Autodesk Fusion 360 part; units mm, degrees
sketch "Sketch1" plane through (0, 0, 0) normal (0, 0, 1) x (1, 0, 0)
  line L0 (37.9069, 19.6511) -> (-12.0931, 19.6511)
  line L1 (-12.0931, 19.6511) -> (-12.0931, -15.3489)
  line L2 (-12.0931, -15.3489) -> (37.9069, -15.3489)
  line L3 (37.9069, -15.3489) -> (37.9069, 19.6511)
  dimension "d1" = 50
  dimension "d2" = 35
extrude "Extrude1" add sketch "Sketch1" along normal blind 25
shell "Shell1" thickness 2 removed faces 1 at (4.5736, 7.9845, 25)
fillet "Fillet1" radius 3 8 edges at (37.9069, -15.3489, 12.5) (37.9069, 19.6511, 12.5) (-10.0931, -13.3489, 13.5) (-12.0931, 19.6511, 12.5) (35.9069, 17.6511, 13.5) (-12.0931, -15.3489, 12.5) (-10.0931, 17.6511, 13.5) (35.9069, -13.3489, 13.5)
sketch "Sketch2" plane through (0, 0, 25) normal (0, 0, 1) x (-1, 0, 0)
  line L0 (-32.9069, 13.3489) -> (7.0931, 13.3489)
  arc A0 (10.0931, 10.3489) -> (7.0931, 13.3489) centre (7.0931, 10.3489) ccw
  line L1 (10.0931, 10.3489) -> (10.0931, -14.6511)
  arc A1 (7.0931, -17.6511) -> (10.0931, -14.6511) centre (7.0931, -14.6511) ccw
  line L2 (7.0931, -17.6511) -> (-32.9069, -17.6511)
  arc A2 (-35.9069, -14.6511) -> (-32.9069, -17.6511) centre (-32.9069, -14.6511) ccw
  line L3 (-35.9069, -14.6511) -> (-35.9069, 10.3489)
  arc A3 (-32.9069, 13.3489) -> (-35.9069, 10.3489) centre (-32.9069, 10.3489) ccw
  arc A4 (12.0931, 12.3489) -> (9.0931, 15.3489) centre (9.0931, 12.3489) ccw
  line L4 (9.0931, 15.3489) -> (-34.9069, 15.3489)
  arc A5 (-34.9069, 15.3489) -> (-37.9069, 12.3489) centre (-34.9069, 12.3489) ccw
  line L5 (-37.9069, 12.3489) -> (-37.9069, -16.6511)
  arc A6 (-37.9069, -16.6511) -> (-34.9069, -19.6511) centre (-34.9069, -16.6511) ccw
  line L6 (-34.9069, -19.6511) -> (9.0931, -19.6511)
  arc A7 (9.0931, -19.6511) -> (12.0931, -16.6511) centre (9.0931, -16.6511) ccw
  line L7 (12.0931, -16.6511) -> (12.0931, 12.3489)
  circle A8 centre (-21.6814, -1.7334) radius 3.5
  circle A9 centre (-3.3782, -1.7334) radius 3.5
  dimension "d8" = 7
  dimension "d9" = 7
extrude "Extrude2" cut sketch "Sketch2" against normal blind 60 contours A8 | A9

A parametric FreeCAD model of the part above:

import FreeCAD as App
import Part
import Sketcher
from FreeCAD import Vector
Q = App.Units.Quantity


def edges_at(feature, points):
    """Names of the edges that pass closest to the given points."""
    edges = feature.Shape.Edges
    near = lambda p: min(range(len(edges)), key=lambda i: edges[i].distToShape(Part.Vertex(*p))[0])
    return sorted({f"Edge{near(p) + 1}" for p in points})


def faces_at(feature, points):
    """Names of the faces that lie closest to the given points."""
    faces = feature.Shape.Faces
    near = lambda p: min(range(len(faces)), key=lambda i: faces[i].distToShape(Part.Vertex(*p))[0])
    return sorted({f"Face{near(p) + 1}" for p in points})

doc = App.newDocument("Part")
body = doc.addObject("PartDesign::Body", "Body")

sketch1 = body.newObject("Sketcher::SketchObject", "Sketch")
sketch1.AttachmentSupport = (doc.getObject("XY_Plane"), [""])
sketch1.MapMode = "FlatFace"
sketch1.addGeometry([
    Part.LineSegment(Vector(38, -15, 0), Vector(38, 20, 0)),
    Part.LineSegment(Vector(38, 20, 0), Vector(-12, 20, 0)),
    Part.LineSegment(Vector(-12, 20, 0), Vector(-12, -15, 0)),
    Part.LineSegment(Vector(-12, -15, 0), Vector(38, -15, 0)),
], False)
sketch1.addConstraint([
    Sketcher.Constraint("Coincident", 0, 2, 1, 1),
    Sketcher.Constraint("Coincident", 1, 2, 2, 1),
    Sketcher.Constraint("Coincident", 2, 2, 3, 1),
    Sketcher.Constraint("Coincident", 3, 2, 0, 1),
    Sketcher.Constraint("Vertical", 0),
    Sketcher.Constraint("Horizontal", 1),
    Sketcher.Constraint("Vertical", 2),
    Sketcher.Constraint("Horizontal", 3),
    Sketcher.Constraint("DistanceX", 1, 2, 1, 1, Q("50 mm")),
    Sketcher.Constraint("DistanceY", 0, 1, 0, 2, Q("35 mm")),
    Sketcher.Constraint("DistanceX", -1, 1, 0, 2, Q("37.907 mm")),
    Sketcher.Constraint("DistanceY", -1, 1, 0, 2, Q("19.651 mm")),
])
pad1 = body.newObject("PartDesign::Pad", "Pad")
pad1.Profile = sketch1
pad1.Length = 25
doc.recompute()

thickness = body.newObject("PartDesign::Thickness", "Thickness")
thickness.Base = (pad1, faces_at(pad1, [(4.574, 7.984, 25)]))
thickness.Value = 2
thickness.Reversed = True
thickness.Join = "Intersection"
doc.recompute()

fillet = body.newObject("PartDesign::Fillet", "Fillet")
fillet.Base = (thickness, edges_at(thickness, [
    (37.907, -15.349, 12.5),
    (37.907, 19.651, 12.5),
    (-10.093, -13.349, 13.5),
    (-12.093, 19.651, 12.5),
    (35.907, 17.651, 13.5),
    (-12.093, -15.349, 12.5),
    (-10.093, 17.651, 13.5),
    (35.907, -13.349, 13.5),
]))
fillet.Radius = 3

sketch2 = body.newObject("Sketcher::SketchObject", "Sketch001")
sketch2.AttachmentSupport = (doc.getObject("XY_Plane"), [""])
sketch2.MapMode = "FlatFace"
sketch2.AttachmentOffset = App.Placement(Vector(0, 0, 25), App.Rotation())
sketch2.addGeometry([
    Part.Circle(Vector(21.7, 1.7, 0), Vector(0, 0, 1), 3.5),
    Part.Circle(Vector(3.4, 1.7, 0), Vector(0, 0, 1), 3.5),
], False)
sketch2.addConstraint([
    Sketcher.Constraint("Equal", 0, 1),
    Sketcher.Constraint("Horizontal", 0, 3, 1, 3),
    Sketcher.Constraint("Diameter", 0, Q("7 mm")),
    Sketcher.Constraint("DistanceX", -1, 1, 0, 3, Q("21.6814 mm")),
    Sketcher.Constraint("DistanceY", -1, 1, 0, 3, Q("1.7334 mm")),
    Sketcher.Constraint("DistanceX", -1, 1, 1, 3, Q("3.3782 mm")),
])
pocket1 = body.newObject("PartDesign::Pocket", "Pocket")
pocket1.Profile = sketch2
pocket1.Length = 60

doc.recompute()
